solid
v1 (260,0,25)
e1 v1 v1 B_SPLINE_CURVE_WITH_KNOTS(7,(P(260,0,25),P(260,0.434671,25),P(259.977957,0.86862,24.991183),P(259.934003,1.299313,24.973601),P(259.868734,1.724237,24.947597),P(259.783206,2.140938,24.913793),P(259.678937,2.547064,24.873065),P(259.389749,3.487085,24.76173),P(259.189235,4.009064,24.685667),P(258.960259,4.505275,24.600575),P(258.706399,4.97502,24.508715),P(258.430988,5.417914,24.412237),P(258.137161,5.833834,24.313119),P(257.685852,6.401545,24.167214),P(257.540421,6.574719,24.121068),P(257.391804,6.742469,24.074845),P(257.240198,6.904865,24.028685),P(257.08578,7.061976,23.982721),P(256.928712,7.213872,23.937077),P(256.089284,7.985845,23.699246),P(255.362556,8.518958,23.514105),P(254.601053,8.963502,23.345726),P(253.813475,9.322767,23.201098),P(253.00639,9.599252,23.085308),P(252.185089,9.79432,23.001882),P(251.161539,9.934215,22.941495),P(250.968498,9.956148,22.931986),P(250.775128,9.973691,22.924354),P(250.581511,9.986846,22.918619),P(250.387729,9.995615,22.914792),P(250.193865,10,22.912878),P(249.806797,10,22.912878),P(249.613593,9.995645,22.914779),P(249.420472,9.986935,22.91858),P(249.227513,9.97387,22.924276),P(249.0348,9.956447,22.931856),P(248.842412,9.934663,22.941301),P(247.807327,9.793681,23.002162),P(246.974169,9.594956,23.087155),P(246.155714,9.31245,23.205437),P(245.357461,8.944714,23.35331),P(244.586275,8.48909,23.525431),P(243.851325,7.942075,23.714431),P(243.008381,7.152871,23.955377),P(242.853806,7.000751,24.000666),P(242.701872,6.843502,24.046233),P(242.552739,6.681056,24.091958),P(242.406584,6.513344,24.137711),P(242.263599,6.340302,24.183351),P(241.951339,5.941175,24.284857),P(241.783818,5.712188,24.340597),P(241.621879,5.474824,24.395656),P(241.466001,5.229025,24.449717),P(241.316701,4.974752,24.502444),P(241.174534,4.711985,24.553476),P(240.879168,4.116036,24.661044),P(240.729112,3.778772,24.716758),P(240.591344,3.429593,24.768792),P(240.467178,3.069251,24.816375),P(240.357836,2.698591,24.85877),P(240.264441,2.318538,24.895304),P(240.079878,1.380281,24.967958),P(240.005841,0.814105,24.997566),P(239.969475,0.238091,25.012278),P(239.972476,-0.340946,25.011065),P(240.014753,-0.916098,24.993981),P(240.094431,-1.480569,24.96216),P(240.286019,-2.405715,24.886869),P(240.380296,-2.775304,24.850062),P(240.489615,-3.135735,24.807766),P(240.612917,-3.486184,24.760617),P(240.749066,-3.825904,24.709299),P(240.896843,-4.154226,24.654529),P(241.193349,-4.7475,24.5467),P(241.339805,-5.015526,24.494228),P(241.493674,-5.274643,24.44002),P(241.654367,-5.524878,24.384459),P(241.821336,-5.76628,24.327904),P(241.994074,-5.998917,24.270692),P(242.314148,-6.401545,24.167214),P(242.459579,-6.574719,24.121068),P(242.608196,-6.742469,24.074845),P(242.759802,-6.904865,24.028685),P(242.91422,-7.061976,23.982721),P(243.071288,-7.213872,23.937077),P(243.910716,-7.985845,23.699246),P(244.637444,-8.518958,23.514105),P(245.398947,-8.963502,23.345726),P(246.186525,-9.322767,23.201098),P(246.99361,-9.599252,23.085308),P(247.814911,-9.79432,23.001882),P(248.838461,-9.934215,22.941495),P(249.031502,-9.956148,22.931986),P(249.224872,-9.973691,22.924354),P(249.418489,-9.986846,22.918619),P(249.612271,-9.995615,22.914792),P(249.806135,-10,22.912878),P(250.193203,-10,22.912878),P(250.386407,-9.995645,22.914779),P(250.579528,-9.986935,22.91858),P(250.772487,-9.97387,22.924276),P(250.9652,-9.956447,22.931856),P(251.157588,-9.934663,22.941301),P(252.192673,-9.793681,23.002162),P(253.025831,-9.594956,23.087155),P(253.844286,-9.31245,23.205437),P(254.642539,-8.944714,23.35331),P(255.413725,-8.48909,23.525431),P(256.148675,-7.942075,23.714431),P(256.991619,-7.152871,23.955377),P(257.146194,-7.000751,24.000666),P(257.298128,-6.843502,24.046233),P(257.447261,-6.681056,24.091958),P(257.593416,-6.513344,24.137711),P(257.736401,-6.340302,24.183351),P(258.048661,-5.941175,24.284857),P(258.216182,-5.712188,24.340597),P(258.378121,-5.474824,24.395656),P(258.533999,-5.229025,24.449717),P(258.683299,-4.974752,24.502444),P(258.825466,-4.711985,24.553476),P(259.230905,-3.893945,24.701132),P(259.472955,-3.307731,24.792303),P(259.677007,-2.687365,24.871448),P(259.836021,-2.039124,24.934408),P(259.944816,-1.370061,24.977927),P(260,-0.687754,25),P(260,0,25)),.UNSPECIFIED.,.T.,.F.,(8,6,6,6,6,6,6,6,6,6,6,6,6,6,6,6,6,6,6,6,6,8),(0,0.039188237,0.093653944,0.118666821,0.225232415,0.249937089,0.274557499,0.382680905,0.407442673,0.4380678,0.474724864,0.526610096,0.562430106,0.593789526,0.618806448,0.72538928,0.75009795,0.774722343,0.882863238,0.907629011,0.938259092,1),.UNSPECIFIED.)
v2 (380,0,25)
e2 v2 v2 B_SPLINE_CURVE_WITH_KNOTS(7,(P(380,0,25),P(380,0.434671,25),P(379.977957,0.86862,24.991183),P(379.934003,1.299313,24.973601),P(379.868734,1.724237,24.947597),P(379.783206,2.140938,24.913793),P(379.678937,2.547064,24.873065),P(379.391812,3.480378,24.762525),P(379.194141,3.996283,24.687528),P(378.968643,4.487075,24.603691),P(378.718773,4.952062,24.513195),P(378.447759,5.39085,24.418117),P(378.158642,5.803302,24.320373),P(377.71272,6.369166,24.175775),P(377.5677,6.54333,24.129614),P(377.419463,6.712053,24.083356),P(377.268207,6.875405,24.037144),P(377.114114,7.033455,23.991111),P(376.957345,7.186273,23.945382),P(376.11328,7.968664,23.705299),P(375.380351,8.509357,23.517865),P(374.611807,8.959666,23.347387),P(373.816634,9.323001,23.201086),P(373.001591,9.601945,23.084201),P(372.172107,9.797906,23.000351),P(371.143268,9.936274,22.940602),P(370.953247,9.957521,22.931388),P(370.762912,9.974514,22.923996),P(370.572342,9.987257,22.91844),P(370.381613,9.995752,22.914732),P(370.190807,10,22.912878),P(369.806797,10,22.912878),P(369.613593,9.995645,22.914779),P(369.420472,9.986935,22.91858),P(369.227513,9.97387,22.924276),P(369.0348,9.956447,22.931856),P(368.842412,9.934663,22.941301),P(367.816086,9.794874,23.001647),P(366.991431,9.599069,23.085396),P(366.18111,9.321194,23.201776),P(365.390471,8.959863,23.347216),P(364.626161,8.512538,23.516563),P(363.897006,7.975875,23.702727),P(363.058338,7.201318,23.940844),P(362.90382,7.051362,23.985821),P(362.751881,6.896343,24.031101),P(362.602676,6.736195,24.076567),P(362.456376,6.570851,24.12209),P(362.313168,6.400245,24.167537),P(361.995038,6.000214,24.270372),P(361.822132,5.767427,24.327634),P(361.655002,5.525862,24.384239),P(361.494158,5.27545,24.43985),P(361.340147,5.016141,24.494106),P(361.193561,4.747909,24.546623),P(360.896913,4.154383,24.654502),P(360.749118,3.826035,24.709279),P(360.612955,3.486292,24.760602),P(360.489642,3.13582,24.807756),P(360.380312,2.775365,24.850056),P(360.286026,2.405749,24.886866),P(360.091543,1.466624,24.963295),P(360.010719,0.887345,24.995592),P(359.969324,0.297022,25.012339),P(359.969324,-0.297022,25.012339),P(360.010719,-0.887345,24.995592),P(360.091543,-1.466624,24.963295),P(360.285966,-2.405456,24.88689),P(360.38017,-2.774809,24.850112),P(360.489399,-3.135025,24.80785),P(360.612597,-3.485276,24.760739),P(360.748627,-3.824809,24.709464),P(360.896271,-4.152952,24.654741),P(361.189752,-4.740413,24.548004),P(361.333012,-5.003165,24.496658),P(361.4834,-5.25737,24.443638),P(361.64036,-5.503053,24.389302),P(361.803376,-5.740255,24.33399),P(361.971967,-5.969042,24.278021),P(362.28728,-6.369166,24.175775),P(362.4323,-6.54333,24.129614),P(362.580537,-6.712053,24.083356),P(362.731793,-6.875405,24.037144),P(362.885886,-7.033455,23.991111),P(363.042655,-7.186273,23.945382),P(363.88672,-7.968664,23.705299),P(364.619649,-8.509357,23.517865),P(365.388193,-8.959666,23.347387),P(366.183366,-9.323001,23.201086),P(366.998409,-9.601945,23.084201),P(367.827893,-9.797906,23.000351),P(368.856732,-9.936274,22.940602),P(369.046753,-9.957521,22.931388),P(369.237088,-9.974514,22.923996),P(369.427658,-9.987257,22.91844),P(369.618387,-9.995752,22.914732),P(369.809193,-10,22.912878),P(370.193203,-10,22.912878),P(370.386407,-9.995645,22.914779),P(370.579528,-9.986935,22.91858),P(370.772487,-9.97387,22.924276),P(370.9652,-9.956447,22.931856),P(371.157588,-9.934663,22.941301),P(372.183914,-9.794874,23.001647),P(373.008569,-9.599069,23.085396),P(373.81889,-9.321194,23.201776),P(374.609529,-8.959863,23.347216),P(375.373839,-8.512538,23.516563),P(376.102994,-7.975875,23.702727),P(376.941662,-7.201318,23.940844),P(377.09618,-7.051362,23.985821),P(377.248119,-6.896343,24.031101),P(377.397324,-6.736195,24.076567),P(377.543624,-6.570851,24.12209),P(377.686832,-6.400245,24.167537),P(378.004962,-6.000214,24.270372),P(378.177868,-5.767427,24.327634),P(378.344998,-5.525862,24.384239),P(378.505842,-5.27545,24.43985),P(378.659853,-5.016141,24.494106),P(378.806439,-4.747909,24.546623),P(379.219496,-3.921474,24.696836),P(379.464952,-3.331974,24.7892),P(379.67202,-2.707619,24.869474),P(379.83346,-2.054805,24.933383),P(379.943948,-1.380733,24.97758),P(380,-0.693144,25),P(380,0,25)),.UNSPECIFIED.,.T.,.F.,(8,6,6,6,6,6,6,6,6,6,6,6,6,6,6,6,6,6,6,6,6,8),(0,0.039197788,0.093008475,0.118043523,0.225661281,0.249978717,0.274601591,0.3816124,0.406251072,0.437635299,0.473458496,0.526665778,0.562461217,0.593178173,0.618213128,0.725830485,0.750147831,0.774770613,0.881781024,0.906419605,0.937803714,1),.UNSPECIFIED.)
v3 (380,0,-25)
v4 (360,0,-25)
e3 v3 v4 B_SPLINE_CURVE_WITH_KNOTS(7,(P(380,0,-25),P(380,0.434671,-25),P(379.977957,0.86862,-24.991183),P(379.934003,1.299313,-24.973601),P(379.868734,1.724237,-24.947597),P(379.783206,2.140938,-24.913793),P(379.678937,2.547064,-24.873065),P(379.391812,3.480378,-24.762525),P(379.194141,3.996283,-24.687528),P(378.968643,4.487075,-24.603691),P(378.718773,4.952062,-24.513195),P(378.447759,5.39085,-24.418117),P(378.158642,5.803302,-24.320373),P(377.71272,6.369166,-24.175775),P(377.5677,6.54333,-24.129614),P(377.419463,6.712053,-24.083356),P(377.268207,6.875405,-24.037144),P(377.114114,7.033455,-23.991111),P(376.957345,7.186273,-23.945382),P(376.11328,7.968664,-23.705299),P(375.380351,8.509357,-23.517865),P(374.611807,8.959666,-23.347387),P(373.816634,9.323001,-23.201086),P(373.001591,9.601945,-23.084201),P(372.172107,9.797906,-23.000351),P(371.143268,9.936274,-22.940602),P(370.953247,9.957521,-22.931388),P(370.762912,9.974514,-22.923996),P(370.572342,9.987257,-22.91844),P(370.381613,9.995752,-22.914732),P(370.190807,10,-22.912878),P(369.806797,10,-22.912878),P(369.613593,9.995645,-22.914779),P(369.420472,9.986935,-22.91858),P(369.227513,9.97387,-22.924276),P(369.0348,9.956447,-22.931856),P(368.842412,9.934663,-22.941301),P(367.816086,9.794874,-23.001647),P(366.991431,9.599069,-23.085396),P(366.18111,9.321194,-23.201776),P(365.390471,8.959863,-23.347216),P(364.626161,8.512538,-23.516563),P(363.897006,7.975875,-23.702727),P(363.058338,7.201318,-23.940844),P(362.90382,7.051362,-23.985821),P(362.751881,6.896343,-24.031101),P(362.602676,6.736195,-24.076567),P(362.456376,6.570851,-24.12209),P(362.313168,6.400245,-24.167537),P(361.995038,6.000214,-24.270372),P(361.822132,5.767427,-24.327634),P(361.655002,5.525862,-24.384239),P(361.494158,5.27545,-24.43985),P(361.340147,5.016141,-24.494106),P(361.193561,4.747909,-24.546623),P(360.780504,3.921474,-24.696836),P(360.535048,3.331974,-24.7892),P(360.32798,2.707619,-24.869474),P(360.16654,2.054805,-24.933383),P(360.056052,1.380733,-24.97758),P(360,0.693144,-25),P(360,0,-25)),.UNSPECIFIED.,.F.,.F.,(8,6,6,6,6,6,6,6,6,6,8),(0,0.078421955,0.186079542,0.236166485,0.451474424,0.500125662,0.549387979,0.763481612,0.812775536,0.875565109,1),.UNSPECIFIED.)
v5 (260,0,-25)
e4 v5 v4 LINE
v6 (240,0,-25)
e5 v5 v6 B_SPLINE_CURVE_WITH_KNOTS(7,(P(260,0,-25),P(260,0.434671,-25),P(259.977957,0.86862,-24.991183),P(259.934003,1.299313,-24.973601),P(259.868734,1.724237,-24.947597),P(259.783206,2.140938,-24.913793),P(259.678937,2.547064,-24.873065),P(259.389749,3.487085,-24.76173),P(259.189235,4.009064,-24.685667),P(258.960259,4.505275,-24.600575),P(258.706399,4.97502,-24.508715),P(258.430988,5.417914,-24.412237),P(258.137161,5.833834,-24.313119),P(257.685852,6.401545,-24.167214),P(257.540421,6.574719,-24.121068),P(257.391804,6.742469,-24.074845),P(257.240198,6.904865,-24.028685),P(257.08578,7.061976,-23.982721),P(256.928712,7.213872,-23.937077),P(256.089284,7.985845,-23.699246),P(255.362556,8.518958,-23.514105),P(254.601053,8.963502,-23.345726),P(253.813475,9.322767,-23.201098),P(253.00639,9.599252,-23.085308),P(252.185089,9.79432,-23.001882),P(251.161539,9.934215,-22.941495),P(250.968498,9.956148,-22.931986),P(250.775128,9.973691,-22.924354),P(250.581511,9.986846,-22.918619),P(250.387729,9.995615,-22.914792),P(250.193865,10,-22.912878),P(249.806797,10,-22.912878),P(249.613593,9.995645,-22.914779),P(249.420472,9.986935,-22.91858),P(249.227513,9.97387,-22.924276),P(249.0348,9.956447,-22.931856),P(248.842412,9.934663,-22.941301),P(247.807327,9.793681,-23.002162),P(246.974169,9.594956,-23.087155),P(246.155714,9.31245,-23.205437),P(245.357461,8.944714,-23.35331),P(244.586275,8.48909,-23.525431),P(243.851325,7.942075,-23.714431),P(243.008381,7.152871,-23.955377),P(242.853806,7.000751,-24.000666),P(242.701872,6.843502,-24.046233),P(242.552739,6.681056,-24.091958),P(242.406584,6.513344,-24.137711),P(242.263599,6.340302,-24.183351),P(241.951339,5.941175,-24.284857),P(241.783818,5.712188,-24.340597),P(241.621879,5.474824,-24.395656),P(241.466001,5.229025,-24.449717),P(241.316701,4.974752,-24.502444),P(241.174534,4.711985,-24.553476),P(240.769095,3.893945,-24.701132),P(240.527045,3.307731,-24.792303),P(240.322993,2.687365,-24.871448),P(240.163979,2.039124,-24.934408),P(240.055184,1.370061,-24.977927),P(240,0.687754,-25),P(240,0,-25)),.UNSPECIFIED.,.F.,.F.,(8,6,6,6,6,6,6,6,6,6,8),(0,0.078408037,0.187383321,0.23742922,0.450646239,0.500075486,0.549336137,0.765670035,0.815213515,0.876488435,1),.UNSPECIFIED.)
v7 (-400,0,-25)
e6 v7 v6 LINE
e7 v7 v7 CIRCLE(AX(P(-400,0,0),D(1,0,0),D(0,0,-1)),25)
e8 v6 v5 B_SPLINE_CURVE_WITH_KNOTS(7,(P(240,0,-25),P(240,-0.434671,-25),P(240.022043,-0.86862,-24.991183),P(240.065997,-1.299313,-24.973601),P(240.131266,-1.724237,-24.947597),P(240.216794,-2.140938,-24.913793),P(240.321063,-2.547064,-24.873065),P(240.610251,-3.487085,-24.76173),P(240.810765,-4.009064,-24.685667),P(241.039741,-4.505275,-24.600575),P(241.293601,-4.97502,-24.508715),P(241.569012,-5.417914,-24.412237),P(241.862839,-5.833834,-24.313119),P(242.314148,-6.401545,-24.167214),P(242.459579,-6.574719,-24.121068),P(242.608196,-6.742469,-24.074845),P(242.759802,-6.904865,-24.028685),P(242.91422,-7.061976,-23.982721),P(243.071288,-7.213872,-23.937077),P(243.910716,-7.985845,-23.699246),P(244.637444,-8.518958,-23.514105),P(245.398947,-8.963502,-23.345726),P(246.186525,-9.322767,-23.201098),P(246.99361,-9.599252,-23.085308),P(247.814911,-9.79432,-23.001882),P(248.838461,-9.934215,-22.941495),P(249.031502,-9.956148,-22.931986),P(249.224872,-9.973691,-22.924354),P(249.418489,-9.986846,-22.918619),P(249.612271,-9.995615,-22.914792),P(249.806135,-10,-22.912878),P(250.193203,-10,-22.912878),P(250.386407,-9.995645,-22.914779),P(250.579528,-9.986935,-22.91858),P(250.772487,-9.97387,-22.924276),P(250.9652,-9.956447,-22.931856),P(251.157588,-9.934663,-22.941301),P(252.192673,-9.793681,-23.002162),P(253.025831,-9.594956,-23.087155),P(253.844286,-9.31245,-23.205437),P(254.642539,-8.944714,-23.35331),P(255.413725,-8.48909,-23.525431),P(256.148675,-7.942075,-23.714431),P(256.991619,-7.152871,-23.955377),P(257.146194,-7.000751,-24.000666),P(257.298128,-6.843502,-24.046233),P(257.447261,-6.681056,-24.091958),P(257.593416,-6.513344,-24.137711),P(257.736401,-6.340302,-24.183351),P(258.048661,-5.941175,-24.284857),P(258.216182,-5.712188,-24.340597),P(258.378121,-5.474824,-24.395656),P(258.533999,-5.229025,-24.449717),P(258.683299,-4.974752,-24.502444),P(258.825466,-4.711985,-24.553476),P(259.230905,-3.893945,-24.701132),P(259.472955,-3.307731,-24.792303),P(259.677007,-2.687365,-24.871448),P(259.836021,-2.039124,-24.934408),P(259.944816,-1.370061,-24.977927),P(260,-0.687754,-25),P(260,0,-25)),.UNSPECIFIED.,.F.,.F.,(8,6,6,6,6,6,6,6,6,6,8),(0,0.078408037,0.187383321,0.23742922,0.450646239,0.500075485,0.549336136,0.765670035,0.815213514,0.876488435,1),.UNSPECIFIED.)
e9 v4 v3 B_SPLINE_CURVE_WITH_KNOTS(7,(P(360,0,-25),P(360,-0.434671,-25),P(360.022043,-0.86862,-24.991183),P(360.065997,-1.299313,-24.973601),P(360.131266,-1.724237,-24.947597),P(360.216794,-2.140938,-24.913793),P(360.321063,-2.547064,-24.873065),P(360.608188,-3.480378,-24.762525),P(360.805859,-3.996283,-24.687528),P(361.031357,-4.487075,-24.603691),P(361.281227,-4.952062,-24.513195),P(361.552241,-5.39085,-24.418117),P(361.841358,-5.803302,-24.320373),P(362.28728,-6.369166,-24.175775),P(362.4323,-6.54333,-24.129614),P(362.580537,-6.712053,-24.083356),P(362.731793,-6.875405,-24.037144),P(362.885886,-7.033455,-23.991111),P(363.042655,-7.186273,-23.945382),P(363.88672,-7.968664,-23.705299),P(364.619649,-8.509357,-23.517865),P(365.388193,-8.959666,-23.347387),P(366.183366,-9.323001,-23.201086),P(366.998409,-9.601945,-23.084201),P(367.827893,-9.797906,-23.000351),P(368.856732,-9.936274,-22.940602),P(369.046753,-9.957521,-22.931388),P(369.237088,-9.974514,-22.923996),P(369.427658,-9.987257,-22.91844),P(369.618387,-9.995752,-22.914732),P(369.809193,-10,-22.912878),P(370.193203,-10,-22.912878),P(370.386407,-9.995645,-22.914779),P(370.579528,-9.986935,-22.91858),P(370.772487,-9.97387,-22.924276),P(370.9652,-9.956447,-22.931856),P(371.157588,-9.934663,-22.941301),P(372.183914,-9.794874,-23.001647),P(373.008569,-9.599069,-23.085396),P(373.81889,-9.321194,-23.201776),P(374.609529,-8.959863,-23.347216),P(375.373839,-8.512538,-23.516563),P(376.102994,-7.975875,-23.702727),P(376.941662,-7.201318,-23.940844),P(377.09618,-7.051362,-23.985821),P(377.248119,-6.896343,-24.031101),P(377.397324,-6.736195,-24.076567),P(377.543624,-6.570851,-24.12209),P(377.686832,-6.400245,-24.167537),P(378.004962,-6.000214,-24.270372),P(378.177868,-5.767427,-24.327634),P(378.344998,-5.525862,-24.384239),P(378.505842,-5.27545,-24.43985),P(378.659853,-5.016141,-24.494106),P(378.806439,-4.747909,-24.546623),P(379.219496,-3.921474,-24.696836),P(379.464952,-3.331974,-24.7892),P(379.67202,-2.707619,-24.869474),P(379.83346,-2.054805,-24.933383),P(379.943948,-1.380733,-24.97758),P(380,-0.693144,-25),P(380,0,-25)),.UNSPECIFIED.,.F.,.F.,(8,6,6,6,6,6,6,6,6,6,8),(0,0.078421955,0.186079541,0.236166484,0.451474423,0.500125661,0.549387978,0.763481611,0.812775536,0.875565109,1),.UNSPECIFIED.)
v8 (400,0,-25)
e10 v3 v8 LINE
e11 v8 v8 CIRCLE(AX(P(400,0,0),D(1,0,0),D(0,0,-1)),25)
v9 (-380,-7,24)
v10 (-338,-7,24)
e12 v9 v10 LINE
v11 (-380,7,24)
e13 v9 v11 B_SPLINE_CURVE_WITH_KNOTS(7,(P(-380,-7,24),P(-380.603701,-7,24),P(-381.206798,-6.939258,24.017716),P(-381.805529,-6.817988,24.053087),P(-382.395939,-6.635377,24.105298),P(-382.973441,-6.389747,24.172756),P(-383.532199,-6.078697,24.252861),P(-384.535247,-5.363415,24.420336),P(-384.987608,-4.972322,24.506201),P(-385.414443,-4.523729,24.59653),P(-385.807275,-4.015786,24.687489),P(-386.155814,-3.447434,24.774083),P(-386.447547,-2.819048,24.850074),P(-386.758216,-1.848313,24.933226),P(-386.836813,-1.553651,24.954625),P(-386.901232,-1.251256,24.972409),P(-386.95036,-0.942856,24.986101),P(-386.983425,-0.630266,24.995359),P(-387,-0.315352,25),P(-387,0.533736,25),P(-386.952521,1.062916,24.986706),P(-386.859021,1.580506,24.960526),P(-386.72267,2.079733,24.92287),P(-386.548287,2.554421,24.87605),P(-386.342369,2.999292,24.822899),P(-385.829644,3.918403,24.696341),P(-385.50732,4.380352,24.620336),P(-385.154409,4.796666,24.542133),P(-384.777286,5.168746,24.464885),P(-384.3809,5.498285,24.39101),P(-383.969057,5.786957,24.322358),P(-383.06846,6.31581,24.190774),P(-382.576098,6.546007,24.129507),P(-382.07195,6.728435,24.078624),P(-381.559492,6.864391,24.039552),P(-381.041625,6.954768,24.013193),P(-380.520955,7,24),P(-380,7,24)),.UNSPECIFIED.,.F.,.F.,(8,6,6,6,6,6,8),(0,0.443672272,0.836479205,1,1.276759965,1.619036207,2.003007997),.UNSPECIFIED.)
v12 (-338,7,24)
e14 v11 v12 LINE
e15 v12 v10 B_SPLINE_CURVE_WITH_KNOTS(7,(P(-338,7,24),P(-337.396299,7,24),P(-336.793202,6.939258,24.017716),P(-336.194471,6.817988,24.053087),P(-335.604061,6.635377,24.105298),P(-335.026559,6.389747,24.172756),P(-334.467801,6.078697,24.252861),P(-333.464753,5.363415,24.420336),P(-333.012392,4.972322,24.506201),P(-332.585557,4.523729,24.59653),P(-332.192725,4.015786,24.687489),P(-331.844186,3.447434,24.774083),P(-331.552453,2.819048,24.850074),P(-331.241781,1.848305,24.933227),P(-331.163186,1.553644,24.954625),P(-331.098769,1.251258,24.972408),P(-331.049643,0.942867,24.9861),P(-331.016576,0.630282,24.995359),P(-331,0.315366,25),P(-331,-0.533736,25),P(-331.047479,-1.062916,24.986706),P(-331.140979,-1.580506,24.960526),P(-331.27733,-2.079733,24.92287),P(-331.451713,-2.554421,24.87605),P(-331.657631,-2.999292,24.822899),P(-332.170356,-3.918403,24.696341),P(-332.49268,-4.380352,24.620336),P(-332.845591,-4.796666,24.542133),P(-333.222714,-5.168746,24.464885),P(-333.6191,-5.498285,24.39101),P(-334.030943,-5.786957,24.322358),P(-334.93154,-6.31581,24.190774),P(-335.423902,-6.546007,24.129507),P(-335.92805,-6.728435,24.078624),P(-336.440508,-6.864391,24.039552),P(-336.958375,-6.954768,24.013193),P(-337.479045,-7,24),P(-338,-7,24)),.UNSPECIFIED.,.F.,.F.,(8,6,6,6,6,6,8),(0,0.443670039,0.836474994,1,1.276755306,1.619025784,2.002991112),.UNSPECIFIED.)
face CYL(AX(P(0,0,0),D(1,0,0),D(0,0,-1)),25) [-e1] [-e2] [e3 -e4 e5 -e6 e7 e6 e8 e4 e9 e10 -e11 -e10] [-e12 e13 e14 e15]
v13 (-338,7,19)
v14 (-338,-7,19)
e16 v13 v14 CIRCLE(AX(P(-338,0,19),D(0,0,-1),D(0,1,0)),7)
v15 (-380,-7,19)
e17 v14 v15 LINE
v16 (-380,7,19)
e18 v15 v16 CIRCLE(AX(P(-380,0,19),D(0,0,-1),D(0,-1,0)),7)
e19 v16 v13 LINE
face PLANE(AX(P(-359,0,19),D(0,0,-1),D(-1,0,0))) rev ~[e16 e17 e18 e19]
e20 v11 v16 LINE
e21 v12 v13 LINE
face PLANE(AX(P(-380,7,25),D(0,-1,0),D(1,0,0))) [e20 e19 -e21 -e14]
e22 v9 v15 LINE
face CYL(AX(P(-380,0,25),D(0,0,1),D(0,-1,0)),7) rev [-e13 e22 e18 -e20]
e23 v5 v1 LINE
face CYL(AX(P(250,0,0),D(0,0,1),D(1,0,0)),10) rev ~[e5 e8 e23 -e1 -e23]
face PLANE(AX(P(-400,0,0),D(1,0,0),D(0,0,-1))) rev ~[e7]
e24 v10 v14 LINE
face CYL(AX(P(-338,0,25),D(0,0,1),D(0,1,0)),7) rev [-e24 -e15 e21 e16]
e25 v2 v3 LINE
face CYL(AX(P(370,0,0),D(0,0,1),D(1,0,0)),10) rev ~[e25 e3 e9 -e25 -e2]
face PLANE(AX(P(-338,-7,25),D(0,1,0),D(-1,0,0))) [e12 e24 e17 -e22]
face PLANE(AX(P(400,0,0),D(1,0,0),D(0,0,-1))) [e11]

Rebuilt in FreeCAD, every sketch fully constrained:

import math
import FreeCAD as App
import Part
import Sketcher

doc = App.newDocument("Part")
body = doc.addObject("PartDesign::Body", "Body")

sketch1 = body.newObject("Sketcher::SketchObject", "Sketch")
sketch1.AttachmentSupport = (doc.getObject("YZ_Plane"), [""])
sketch1.MapMode = "FlatFace"
sketch1.addGeometry(Part.Circle(App.Vector(0, 0, 0), App.Vector(0, 0, 1), 25), False)
sketch1.addConstraint(Sketcher.Constraint("Coincident", 0, 3, -1, 1))
sketch1.addConstraint(Sketcher.Constraint("Diameter", 0, 50.0))
pad1 = body.newObject("PartDesign::Pad", "Pad")
pad1.Profile = sketch1
pad1.Length = 800
pad1.Midplane = True

sketch2 = body.newObject("Sketcher::SketchObject", "Sketch001")
sketch2.AttachmentSupport = (doc.getObject("XY_Plane"), [""])
sketch2.MapMode = "FlatFace"
sketch2.addGeometry(Part.Circle(App.Vector(370, 0, 0), App.Vector(0, 0, 1), 10), False)
sketch2.addGeometry(Part.Circle(App.Vector(250, 0, 0), App.Vector(0, 0, 1), 10), False)
sketch2.addConstraint(Sketcher.Constraint("Equal", 0, 1))
sketch2.addConstraint(Sketcher.Constraint("PointOnObject", 0, 3, -1))
sketch2.addConstraint(Sketcher.Constraint("PointOnObject", 1, 3, -1))
sketch2.addConstraint(Sketcher.Constraint("Diameter", 0, 20.0))
sketch2.addConstraint(Sketcher.Constraint("DistanceX", -1, 1, 0, 3, 370.0))
sketch2.addConstraint(Sketcher.Constraint("DistanceX", -1, 1, 1, 3, 250.0))
pocket1 = body.newObject("PartDesign::Pocket", "Pocket")
pocket1.Profile = sketch2
pocket1.Length = 320
pocket1.Midplane = True

sketch3 = body.newObject("Sketcher::SketchObject", "Sketch002")
sketch3.AttachmentSupport = (doc.getObject("XY_Plane"), [""])
sketch3.MapMode = "FlatFace"
sketch3.AttachmentOffset = App.Placement(App.Vector(0, 0, 25), App.Rotation())
sketch3.addGeometry(Part.LineSegment(App.Vector(-338, 7, 0), App.Vector(-380, 7, 0)), False)
sketch3.addGeometry(Part.ArcOfCircle(Part.Circle(App.Vector(-380, 0, 0), App.Vector(0, 0, 1), 7), math.radians(90), math.radians(270)), False)
sketch3.addGeometry(Part.LineSegment(App.Vector(-380, -7, 0), App.Vector(-338, -7, 0)), False)
sketch3.addGeometry(Part.ArcOfCircle(Part.Circle(App.Vector(-338, 0, 0), App.Vector(0, 0, 1), 7), math.radians(-90), math.radians(90)), False)
sketch3.addConstraint(Sketcher.Constraint("Tangent", 0, 2, 1, 1))
sketch3.addConstraint(Sketcher.Constraint("Tangent", 1, 2, 2, 1))
sketch3.addConstraint(Sketcher.Constraint("Tangent", 2, 2, 3, 1))
sketch3.addConstraint(Sketcher.Constraint("Tangent", 3, 2, 0, 1))
sketch3.addConstraint(Sketcher.Constraint("Horizontal", 0))
sketch3.addConstraint(Sketcher.Constraint("Horizontal", 2))
sketch3.addConstraint(Sketcher.Constraint("PointOnObject", 1, 3, -1))
sketch3.addConstraint(Sketcher.Constraint("Radius", 1, 7.0))
sketch3.addConstraint(Sketcher.Constraint("DistanceX", 0, 2, 0, 1, 42.0))
sketch3.addConstraint(Sketcher.Constraint("DistanceX", 1, 3, -1, 1, 380.0))
pocket2 = body.newObject("PartDesign::Pocket", "Pocket001")
pocket2.Profile = sketch3
pocket2.Length = 6

doc.recompute()
